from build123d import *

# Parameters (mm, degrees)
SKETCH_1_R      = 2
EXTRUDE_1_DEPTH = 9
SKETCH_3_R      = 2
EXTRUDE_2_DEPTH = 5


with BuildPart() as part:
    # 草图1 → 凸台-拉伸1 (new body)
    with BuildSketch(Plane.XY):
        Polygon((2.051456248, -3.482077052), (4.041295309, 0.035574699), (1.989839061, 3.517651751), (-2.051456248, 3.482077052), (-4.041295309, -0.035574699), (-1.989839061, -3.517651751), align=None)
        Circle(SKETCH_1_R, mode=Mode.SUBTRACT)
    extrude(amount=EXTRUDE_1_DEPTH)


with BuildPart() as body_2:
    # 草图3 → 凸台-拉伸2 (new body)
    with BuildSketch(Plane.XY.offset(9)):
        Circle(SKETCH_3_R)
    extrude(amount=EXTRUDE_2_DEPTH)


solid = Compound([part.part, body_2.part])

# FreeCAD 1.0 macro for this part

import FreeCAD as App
import Part
import Sketcher

V = App.Vector
Q = App.Units.Quantity


def add_polygon(sketch, points):
    """Adds a closed chain of lines whose ends are joined by coincident constraints."""
    first, n = sketch.GeometryCount, len(points)
    for a, b in zip(points, points[1:] + points[:1]):
        sketch.addGeometry(Part.LineSegment(App.Vector(*a, 0), App.Vector(*b, 0)), False)
    for i in range(n):
        sketch.addConstraint(Sketcher.Constraint("Coincident", first + i, 2, first + (i + 1) % n, 1))

doc = App.newDocument("Part")
body = doc.addObject("PartDesign::Body", "Body")

sketch1 = doc.addObject("Sketcher::SketchObject", "Sketch")
body.addObject(sketch1)
sketch1.AttachmentSupport = (doc.XY_Plane, [""])
sketch1.MapMode = "FlatFace"
add_polygon(sketch1, [(2.051456, -3.482077), (4.041295, 0.035575), (1.989839, 3.517652), (-2.051456, 3.482077), (-4.041295, -0.035575), (-1.989839, -3.517652)])
sketch1.addGeometry(Part.Circle(V(0, 0, 0), V(0, 0, 1), 2), False)
sketch1.addConstraint([
    Sketcher.Constraint("Coincident", 6, 3, -1, 1),
    Sketcher.Constraint("Symmetric", 0, 2, 3, 2, -1, 1),
    Sketcher.Constraint("Symmetric", 1, 2, 4, 2, -1, 1),
    Sketcher.Constraint("Symmetric", 2, 2, 5, 2, -1, 1),
    Sketcher.Constraint("Equal", 0, 1),
    Sketcher.Constraint("Equal", 1, 2),
    Sketcher.Constraint("Diameter", 6, Q("4 mm")),
    Sketcher.Constraint("Distance", 0, Q("4.041452 mm")),
    Sketcher.Constraint("DistanceX", -1, 1, 1, 2, Q("1.989839 mm")),
    Sketcher.Constraint("DistanceY", -1, 1, 1, 2, Q("3.517652 mm")),
    Sketcher.Constraint("DistanceX", 2, 2, 0, 2, Q("6.092752 mm")),
])
pad1 = doc.addObject("PartDesign::Pad", "Pad")
body.addObject(pad1)
pad1.Profile = sketch1
pad1.Length = 9
body2 = doc.addObject("PartDesign::Body", "Body001")

sketch2 = doc.addObject("Sketcher::SketchObject", "Sketch001")
body2.addObject(sketch2)
sketch2.AttachmentSupport = (doc.getObject("XY_Plane001"), [""])
sketch2.MapMode = "FlatFace"
sketch2.AttachmentOffset = App.Placement(V(0, 0, 9), App.Rotation())
sketch2.addGeometry(Part.Circle(V(0, 0, 0), V(0, 0, 1), 2), False)
sketch2.addConstraint([
    Sketcher.Constraint("Coincident", 0, 3, -1, 1),
    Sketcher.Constraint("Diameter", 0, Q("4 mm")),
])
pad2 = doc.addObject("PartDesign::Pad", "Pad001")
body2.addObject(pad2)
pad2.Profile = sketch2
pad2.Length = 5

doc.recompute()
